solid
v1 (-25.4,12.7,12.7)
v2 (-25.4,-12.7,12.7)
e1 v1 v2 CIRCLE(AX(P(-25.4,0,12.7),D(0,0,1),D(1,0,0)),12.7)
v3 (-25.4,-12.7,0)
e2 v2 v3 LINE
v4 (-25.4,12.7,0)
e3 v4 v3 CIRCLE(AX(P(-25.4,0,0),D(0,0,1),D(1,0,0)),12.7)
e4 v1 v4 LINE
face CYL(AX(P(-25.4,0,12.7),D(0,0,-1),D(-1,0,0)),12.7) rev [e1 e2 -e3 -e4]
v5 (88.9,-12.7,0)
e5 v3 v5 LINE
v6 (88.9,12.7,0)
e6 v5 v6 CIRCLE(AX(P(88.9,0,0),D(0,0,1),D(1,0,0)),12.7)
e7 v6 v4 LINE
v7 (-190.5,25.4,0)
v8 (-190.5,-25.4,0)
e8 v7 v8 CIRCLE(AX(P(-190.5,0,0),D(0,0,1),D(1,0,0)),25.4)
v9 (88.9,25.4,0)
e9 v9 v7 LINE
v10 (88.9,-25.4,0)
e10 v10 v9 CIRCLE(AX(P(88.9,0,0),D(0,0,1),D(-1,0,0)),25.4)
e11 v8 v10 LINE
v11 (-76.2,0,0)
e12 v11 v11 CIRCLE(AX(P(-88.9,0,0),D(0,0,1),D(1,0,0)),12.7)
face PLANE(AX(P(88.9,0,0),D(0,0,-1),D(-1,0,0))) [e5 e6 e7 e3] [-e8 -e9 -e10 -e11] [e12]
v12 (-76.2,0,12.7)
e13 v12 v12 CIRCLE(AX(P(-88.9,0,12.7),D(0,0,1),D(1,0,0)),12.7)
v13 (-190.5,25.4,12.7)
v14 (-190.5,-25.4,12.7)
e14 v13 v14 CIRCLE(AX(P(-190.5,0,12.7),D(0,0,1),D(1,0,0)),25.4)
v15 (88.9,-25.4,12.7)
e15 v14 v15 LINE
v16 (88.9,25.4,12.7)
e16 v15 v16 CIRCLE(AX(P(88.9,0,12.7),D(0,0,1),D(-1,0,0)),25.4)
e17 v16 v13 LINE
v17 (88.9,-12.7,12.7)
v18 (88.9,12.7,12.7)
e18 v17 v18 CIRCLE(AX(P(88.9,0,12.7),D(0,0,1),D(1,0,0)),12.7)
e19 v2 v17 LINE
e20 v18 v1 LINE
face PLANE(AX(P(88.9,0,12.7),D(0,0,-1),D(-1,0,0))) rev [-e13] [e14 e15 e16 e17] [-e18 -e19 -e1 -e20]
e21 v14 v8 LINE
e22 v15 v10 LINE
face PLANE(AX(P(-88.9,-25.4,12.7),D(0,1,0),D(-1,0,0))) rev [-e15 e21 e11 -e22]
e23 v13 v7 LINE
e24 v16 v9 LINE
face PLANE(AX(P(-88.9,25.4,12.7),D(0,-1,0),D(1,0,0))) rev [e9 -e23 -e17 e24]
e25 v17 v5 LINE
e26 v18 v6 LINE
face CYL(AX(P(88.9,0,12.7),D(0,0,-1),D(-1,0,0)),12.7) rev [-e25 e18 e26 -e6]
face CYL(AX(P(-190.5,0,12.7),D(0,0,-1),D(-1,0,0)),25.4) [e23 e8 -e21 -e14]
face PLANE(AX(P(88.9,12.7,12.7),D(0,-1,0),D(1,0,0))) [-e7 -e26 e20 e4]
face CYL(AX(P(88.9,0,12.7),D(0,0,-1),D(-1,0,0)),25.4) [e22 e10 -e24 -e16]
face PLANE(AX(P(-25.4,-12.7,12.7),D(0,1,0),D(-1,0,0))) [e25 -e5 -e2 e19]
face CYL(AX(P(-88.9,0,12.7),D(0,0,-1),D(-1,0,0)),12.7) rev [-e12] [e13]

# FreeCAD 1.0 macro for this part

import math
import FreeCAD as App
import Part
import Sketcher
Q = App.Units.Quantity

doc = App.newDocument("Part")
body = doc.addObject("PartDesign::Body", "Body")

sketch1 = body.newObject("Sketcher::SketchObject", "Sketch")
sketch1.AttachmentSupport = (doc.getObject("XY_Plane"), [""])
sketch1.MapMode = "FlatFace"
sketch1.addGeometry(Part.ArcOfCircle(Part.Circle(App.Vector(89, 0, 0), App.Vector(0, 0, 1), 25), math.radians(-90), math.radians(90)), False)
sketch1.addGeometry(Part.LineSegment(App.Vector(89, 25, 0), App.Vector(-190, 25, 0)), False)
sketch1.addGeometry(Part.ArcOfCircle(Part.Circle(App.Vector(-190, 0, 0), App.Vector(0, 0, 1), 25), math.radians(90), math.radians(270)), False)
sketch1.addGeometry(Part.LineSegment(App.Vector(-190, -25, 0), App.Vector(89, -25, 0)), False)
sketch1.addGeometry(Part.ArcOfCircle(Part.Circle(App.Vector(89, 0, 0), App.Vector(0, 0, 1), 13), math.radians(-90), math.radians(90)), False)
sketch1.addGeometry(Part.LineSegment(App.Vector(89, -13, 0), App.Vector(-25, -13, 0)), False)
sketch1.addGeometry(Part.ArcOfCircle(Part.Circle(App.Vector(-25, 0, 0), App.Vector(0, 0, 1), 13), math.radians(90), math.radians(270)), False)
sketch1.addGeometry(Part.LineSegment(App.Vector(-25, 13, 0), App.Vector(89, 13, 0)), False)
sketch1.addGeometry(Part.Circle(App.Vector(-89, 0, 0), App.Vector(0, 0, 1), 13), False)
sketch1.addConstraint(Sketcher.Constraint("Tangent", 0, 2, 1, 1))
sketch1.addConstraint(Sketcher.Constraint("Tangent", 1, 2, 2, 1))
sketch1.addConstraint(Sketcher.Constraint("Tangent", 2, 2, 3, 1))
sketch1.addConstraint(Sketcher.Constraint("Tangent", 3, 2, 0, 1))
sketch1.addConstraint(Sketcher.Constraint("Tangent", 4, 1, 5, 1))
sketch1.addConstraint(Sketcher.Constraint("Tangent", 5, 2, 6, 2))
sketch1.addConstraint(Sketcher.Constraint("Tangent", 6, 1, 7, 1))
sketch1.addConstraint(Sketcher.Constraint("Tangent", 7, 2, 4, 2))
sketch1.addConstraint(Sketcher.Constraint("Horizontal", 1))
sketch1.addConstraint(Sketcher.Constraint("Horizontal", 3))
sketch1.addConstraint(Sketcher.Constraint("Horizontal", 5))
sketch1.addConstraint(Sketcher.Constraint("Horizontal", 7))
sketch1.addConstraint(Sketcher.Constraint("Coincident", 4, 3, 0, 3))
sketch1.addConstraint(Sketcher.Constraint("Equal", 6, 8))
sketch1.addConstraint(Sketcher.Constraint("Symmetric", 0, 3, 8, 3, -1, 1))
sketch1.addConstraint(Sketcher.Constraint("PointOnObject", 0, 3, -1))
sketch1.addConstraint(Sketcher.Constraint("Diameter", 8, Q("1 in")))
sketch1.addConstraint(Sketcher.Constraint("Radius", 0, Q("1 in")))
sketch1.addConstraint(Sketcher.Constraint("DistanceX", 1, 2, 1, 1, Q("11 in")))
sketch1.addConstraint(Sketcher.Constraint("DistanceX", 5, 2, 5, 1, Q("4.5 in")))
sketch1.addConstraint(Sketcher.Constraint("DistanceX", 6, 3, -1, 1, Q("1 in")))
pad1 = body.newObject("PartDesign::Pad", "Pad")
pad1.Profile = sketch1
pad1.Length = Q("0.5 in")

doc.recompute()
